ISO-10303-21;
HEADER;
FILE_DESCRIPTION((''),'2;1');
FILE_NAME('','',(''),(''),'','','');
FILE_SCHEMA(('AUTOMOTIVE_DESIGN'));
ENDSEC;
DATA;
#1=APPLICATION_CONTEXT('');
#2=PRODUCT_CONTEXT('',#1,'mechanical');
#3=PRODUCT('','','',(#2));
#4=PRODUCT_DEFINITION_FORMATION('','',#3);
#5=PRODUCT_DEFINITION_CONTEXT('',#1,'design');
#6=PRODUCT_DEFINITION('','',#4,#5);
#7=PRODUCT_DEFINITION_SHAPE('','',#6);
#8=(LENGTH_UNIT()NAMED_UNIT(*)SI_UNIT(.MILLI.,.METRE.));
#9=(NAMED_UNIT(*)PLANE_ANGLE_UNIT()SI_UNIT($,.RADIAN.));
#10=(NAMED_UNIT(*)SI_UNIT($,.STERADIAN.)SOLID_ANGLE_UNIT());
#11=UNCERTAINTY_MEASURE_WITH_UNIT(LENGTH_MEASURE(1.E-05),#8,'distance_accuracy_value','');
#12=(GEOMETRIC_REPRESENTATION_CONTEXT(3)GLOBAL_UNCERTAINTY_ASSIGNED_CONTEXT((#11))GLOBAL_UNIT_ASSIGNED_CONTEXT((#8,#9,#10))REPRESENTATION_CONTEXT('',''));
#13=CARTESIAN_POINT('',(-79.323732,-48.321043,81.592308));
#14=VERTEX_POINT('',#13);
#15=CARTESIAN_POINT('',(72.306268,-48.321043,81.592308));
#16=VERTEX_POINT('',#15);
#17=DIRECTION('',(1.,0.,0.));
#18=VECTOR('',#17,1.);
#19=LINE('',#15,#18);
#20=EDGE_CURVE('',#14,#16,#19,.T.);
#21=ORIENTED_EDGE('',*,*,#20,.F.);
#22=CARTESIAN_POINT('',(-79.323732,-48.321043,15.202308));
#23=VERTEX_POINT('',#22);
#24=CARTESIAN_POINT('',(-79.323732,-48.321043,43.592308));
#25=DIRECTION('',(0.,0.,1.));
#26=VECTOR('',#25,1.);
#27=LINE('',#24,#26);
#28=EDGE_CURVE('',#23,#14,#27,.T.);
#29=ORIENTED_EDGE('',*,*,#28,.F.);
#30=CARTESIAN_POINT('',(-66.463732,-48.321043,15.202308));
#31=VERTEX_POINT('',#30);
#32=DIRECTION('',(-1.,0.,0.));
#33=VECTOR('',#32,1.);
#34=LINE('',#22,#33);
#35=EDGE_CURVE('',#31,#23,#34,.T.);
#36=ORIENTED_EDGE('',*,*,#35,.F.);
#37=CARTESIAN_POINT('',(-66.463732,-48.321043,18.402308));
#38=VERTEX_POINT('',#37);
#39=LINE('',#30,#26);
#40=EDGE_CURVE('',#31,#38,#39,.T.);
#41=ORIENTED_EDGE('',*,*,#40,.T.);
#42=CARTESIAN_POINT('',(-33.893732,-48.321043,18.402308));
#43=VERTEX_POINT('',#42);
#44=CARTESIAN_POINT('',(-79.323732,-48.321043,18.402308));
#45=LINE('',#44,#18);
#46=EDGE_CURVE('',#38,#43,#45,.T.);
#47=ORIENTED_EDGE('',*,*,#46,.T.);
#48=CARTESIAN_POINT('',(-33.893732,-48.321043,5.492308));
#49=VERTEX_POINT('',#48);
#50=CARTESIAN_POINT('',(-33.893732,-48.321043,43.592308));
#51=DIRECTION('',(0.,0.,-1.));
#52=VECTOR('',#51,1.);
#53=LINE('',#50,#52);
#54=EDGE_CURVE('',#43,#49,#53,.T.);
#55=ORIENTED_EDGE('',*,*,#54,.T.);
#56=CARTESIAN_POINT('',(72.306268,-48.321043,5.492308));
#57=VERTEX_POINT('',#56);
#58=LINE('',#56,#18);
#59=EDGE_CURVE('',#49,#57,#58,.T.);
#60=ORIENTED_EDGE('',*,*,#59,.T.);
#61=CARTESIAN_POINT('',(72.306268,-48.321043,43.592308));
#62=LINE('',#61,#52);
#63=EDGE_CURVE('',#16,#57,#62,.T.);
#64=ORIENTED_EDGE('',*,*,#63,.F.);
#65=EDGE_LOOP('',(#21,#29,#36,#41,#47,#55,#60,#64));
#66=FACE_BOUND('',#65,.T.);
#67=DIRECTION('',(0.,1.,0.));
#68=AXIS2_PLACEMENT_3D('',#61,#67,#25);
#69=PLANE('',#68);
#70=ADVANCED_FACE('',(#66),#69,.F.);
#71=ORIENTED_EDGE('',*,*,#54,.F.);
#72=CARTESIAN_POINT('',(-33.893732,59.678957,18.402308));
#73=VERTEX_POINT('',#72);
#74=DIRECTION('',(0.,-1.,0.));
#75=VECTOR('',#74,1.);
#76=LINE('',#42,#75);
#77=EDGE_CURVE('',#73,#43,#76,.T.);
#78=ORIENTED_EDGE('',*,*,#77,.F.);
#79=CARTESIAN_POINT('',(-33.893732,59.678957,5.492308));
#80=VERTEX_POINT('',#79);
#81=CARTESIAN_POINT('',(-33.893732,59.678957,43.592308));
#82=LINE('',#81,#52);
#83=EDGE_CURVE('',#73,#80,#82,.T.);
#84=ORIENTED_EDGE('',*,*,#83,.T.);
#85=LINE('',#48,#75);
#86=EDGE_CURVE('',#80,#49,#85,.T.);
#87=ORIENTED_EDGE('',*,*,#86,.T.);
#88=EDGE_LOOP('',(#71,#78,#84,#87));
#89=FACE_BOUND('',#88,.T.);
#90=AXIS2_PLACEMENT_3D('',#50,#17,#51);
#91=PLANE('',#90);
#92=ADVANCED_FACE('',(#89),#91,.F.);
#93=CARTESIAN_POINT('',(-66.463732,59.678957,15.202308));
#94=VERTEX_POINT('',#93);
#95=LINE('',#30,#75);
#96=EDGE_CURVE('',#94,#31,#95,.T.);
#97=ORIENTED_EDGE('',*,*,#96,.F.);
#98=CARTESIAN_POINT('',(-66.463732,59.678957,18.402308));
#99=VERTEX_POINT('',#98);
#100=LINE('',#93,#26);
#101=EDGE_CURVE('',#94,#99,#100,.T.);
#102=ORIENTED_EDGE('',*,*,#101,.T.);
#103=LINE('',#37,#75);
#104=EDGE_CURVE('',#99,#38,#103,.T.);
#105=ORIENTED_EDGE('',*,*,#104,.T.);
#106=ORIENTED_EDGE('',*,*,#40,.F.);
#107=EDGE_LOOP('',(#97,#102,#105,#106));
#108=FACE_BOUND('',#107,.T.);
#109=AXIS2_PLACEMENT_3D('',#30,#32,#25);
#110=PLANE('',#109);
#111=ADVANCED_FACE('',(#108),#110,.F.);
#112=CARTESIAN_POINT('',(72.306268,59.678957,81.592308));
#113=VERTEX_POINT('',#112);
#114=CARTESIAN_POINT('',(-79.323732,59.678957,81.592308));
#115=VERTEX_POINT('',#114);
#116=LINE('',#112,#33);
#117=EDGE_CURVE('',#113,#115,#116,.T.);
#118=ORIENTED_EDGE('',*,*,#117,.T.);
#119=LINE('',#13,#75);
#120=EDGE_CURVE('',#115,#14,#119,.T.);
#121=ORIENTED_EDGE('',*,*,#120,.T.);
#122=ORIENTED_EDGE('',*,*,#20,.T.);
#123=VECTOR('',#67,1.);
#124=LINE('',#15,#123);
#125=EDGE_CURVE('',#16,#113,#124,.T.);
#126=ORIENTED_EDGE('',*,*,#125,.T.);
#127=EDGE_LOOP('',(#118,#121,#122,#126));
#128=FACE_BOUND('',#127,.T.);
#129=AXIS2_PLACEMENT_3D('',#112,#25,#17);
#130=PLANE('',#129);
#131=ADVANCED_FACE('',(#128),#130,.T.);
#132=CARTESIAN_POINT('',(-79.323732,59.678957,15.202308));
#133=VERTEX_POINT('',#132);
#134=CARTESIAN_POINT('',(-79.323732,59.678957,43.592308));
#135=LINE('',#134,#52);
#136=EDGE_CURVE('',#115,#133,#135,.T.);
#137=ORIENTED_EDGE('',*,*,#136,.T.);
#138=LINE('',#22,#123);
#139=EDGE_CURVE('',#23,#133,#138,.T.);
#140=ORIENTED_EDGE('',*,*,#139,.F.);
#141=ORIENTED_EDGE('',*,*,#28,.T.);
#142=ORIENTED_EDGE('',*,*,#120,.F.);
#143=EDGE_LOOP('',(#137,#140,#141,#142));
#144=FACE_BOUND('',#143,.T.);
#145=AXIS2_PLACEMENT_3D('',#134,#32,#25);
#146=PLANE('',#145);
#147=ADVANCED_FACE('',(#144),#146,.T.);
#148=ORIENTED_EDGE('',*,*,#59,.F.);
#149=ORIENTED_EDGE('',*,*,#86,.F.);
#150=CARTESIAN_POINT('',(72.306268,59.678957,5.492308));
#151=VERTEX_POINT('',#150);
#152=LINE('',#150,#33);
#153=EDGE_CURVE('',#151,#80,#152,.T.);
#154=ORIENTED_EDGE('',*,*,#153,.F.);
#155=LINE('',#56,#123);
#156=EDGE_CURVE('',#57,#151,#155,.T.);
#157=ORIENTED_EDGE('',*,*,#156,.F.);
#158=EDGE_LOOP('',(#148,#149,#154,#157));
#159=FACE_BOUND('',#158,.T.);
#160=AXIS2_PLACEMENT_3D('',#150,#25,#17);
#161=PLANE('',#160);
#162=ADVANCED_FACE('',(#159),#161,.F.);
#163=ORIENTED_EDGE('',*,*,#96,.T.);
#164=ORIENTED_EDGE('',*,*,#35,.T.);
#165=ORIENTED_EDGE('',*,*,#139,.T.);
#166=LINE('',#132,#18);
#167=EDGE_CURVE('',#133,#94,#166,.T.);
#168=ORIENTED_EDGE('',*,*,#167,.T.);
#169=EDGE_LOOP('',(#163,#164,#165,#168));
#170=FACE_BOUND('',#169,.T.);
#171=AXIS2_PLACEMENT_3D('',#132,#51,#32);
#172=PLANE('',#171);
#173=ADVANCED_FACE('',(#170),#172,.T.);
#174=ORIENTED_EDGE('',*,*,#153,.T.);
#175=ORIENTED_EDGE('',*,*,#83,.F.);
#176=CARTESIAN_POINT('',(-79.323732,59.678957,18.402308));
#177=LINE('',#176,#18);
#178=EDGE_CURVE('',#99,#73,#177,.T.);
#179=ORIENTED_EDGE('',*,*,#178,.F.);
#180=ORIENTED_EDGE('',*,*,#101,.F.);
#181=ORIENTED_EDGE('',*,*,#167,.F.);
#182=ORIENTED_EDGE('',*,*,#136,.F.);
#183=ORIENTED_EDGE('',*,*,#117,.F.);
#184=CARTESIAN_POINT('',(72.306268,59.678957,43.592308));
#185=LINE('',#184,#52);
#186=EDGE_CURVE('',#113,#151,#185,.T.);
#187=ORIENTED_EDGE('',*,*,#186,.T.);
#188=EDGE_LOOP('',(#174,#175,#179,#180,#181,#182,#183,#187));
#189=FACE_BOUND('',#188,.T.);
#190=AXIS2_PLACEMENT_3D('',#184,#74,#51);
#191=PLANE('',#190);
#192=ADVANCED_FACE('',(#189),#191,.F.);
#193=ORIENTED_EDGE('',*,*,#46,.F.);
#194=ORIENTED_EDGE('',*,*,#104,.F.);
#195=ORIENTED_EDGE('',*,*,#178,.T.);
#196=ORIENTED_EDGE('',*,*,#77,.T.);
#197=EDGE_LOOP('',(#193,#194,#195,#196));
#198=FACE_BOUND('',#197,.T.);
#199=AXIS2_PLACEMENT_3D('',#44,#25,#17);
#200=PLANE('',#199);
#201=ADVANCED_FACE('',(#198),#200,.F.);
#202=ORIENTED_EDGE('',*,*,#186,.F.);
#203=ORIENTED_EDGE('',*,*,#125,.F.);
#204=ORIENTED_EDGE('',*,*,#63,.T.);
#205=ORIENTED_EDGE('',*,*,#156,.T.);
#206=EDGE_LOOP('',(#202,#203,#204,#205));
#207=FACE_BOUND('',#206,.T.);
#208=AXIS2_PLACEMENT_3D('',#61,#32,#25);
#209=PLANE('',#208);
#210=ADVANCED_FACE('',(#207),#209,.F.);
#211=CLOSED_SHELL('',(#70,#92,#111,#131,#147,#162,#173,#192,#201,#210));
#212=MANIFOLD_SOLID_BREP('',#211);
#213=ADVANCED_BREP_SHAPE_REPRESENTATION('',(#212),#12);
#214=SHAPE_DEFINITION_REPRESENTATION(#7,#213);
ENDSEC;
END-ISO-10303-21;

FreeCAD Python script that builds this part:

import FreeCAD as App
import Part
import Sketcher
Q = App.Units.Quantity

doc = App.newDocument("Part")
body = doc.addObject("PartDesign::Body", "Body")

# Sketch on XY plane
sketch1 = doc.addObject("Sketcher::SketchObject", "Sketch")
body.addObject(sketch1)
sketch1.AttachmentSupport = (doc.XY_Plane, [""])
sketch1.MapMode = "FlatFace"
sketch1.AttachmentOffset = App.Placement(App.Vector(0, 0, 5.492308), App.Rotation())
sketch1.addGeometry(Part.LineSegment(App.Vector(-33.893732, 59.678957, 0), App.Vector(-33.893732, -48.321043, 0)), False)
sketch1.addGeometry(Part.LineSegment(App.Vector(-33.893732, -48.321043, 0), App.Vector(72.306268, -48.321043, 0)), False)
sketch1.addGeometry(Part.LineSegment(App.Vector(72.306268, -48.321043, 0), App.Vector(72.306268, 59.678957, 0)), False)
sketch1.addGeometry(Part.LineSegment(App.Vector(72.306268, 59.678957, 0), App.Vector(-33.893732, 59.678957, 0)), False)
sketch1.addConstraint(Sketcher.Constraint("Coincident", 0, 2, 1, 1))
sketch1.addConstraint(Sketcher.Constraint("Coincident", 1, 2, 2, 1))
sketch1.addConstraint(Sketcher.Constraint("Coincident", 2, 2, 3, 1))
sketch1.addConstraint(Sketcher.Constraint("Coincident", 3, 2, 0, 1))
sketch1.addConstraint(Sketcher.Constraint("Vertical", 0))
sketch1.addConstraint(Sketcher.Constraint("Horizontal", 1))
sketch1.addConstraint(Sketcher.Constraint("Vertical", 2))
sketch1.addConstraint(Sketcher.Constraint("Horizontal", 3))
sketch1.addConstraint(Sketcher.Constraint("DistanceY", 0, 2, 0, 1, Q("108 mm")))
sketch1.addConstraint(Sketcher.Constraint("DistanceX", 1, 1, 1, 2, Q("106.2 mm")))
sketch1.addConstraint(Sketcher.Constraint("DistanceX", 0, 2, -1, 1, Q("33.893732 mm")))
sketch1.addConstraint(Sketcher.Constraint("DistanceY", 0, 2, -1, 1, Q("48.321043 mm")))
pad1 = doc.addObject("PartDesign::Pad", "Pad")
body.addObject(pad1)
pad1.Profile = sketch1
pad1.Length = 38.1

# Sketch on YZ plane
sketch2 = doc.addObject("Sketcher::SketchObject", "Sketch001")
body.addObject(sketch2)
sketch2.AttachmentSupport = (doc.YZ_Plane, [""])
sketch2.MapMode = "FlatFace"
sketch2.AttachmentOffset = App.Placement(App.Vector(0, 0, -33.893732), App.Rotation())
sketch2.addGeometry(Part.LineSegment(App.Vector(59.678957, 18.402308, 0), App.Vector(-48.321043, 18.402308, 0)), False)
sketch2.addGeometry(Part.LineSegment(App.Vector(-48.321043, 18.402308, 0), App.Vector(-48.321043, 43.592308, 0)), False)
sketch2.addGeometry(Part.LineSegment(App.Vector(-48.321043, 43.592308, 0), App.Vector(59.678957, 43.592308, 0)), False)
sketch2.addGeometry(Part.LineSegment(App.Vector(59.678957, 43.592308, 0), App.Vector(59.678957, 18.402308, 0)), False)
sketch2.addConstraint(Sketcher.Constraint("Coincident", 0, 2, 1, 1))
sketch2.addConstraint(Sketcher.Constraint("Coincident", 1, 2, 2, 1))
sketch2.addConstraint(Sketcher.Constraint("Coincident", 2, 2, 3, 1))
sketch2.addConstraint(Sketcher.Constraint("Coincident", 3, 2, 0, 1))
sketch2.addConstraint(Sketcher.Constraint("Horizontal", 0))
sketch2.addConstraint(Sketcher.Constraint("Vertical", 1))
sketch2.addConstraint(Sketcher.Constraint("Horizontal", 2))
sketch2.addConstraint(Sketcher.Constraint("Vertical", 3))
sketch2.addConstraint(Sketcher.Constraint("DistanceX", 0, 2, 0, 1, Q("108 mm")))
sketch2.addConstraint(Sketcher.Constraint("DistanceY", 1, 1, 1, 2, Q("25.19 mm")))
sketch2.addConstraint(Sketcher.Constraint("DistanceY", -1, 1, 0, 2, Q("18.402308 mm")))
sketch2.addConstraint(Sketcher.Constraint("DistanceX", 0, 2, -1, 1, Q("48.321043 mm")))
pad2 = doc.addObject("PartDesign::Pad", "Pad001")
body.addObject(pad2)
pad2.Profile = sketch2
pad2.Length = 45.43
pad2.Reversed = True

# Sketch on XY plane
sketch3 = doc.addObject("Sketcher::SketchObject", "Sketch002")
body.addObject(sketch3)
sketch3.AttachmentSupport = (doc.XY_Plane, [""])
sketch3.MapMode = "FlatFace"
sketch3.AttachmentOffset = App.Placement(App.Vector(0, 0, 18.402308), App.Rotation())
sketch3.addGeometry(Part.LineSegment(App.Vector(-66.463732, 59.678957, 0), App.Vector(-66.463732, -48.321043, 0)), False)
sketch3.addGeometry(Part.LineSegment(App.Vector(-66.463732, -48.321043, 0), App.Vector(-79.323732, -48.321043, 0)), False)
sketch3.addGeometry(Part.LineSegment(App.Vector(-79.323732, -48.321043, 0), App.Vector(-79.323732, 59.678957, 0)), False)
sketch3.addGeometry(Part.LineSegment(App.Vector(-79.323732, 59.678957, 0), App.Vector(-66.463732, 59.678957, 0)), False)
sketch3.addConstraint(Sketcher.Constraint("Coincident", 0, 2, 1, 1))
sketch3.addConstraint(Sketcher.Constraint("Coincident", 1, 2, 2, 1))
sketch3.addConstraint(Sketcher.Constraint("Coincident", 2, 2, 3, 1))
sketch3.addConstraint(Sketcher.Constraint("Coincident", 3, 2, 0, 1))
sketch3.addConstraint(Sketcher.Constraint("Vertical", 0))
sketch3.addConstraint(Sketcher.Constraint("Horizontal", 1))
sketch3.addConstraint(Sketcher.Constraint("Vertical", 2))
sketch3.addConstraint(Sketcher.Constraint("Horizontal", 3))
sketch3.addConstraint(Sketcher.Constraint("DistanceY", 0, 2, 0, 1, Q("108 mm")))
sketch3.addConstraint(Sketcher.Constraint("DistanceX", 1, 2, 1, 1, Q("12.86 mm")))
sketch3.addConstraint(Sketcher.Constraint("DistanceX", 0, 2, -1, 1, Q("66.463732 mm")))
sketch3.addConstraint(Sketcher.Constraint("DistanceY", 0, 2, -1, 1, Q("48.321043 mm")))
pad3 = doc.addObject("PartDesign::Pad", "Pad002")
body.addObject(pad3)
pad3.Profile = sketch3
pad3.Length = 3.2
pad3.Reversed = True

# Sketch on XY plane
sketch4 = doc.addObject("Sketcher::SketchObject", "Sketch003")
body.addObject(sketch4)
sketch4.AttachmentSupport = (doc.XY_Plane, [""])
sketch4.MapMode = "FlatFace"
sketch4.AttachmentOffset = App.Placement(App.Vector(0, 0, 43.592308), App.Rotation())
sketch4.addGeometry(Part.LineSegment(App.Vector(-79.323732, 59.678957, 0), App.Vector(-79.323732, -48.321043, 0)), False)
sketch4.addGeometry(Part.LineSegment(App.Vector(-79.323732, -48.321043, 0), App.Vector(72.306268, -48.321043, 0)), False)
sketch4.addGeometry(Part.LineSegment(App.Vector(72.306268, -48.321043, 0), App.Vector(72.306268, 59.678957, 0)), False)
sketch4.addGeometry(Part.LineSegment(App.Vector(72.306268, 59.678957, 0), App.Vector(-79.323732, 59.678957, 0)), False)
sketch4.addConstraint(Sketcher.Constraint("Coincident", 0, 2, 1, 1))
sketch4.addConstraint(Sketcher.Constraint("Coincident", 1, 2, 2, 1))
sketch4.addConstraint(Sketcher.Constraint("Coincident", 2, 2, 3, 1))
sketch4.addConstraint(Sketcher.Constraint("Coincident", 3, 2, 0, 1))
sketch4.addConstraint(Sketcher.Constraint("Vertical", 0))
sketch4.addConstraint(Sketcher.Constraint("Horizontal", 1))
sketch4.addConstraint(Sketcher.Constraint("Vertical", 2))
sketch4.addConstraint(Sketcher.Constraint("Horizontal", 3))
sketch4.addConstraint(Sketcher.Constraint("DistanceY", 0, 2, 0, 1, Q("108 mm")))
sketch4.addConstraint(Sketcher.Constraint("DistanceX", 1, 1, 1, 2, Q("151.63 mm")))
sketch4.addConstraint(Sketcher.Constraint("DistanceX", 0, 2, -1, 1, Q("79.323732 mm")))
sketch4.addConstraint(Sketcher.Constraint("DistanceY", 0, 2, -1, 1, Q("48.321043 mm")))
pocket1 = doc.addObject("PartDesign::Pocket", "Pocket")
body.addObject(pocket1)
pocket1.Profile = sketch4
pocket1.Length = 21

# Sketch on XY plane
sketch5 = doc.addObject("Sketcher::SketchObject", "Sketch004")
body.addObject(sketch5)
sketch5.AttachmentSupport = (doc.XY_Plane, [""])
sketch5.MapMode = "FlatFace"
sketch5.AttachmentOffset = App.Placement(App.Vector(0, 0, 22.592308), App.Rotation())
sketch5.addGeometry(Part.LineSegment(App.Vector(-79.323732, 59.678957, 0), App.Vector(-79.323732, -48.321043, 0)), False)
sketch5.addGeometry(Part.LineSegment(App.Vector(-79.323732, -48.321043, 0), App.Vector(72.306268, -48.321043, 0)), False)
sketch5.addGeometry(Part.LineSegment(App.Vector(72.306268, -48.321043, 0), App.Vector(72.306268, 59.678957, 0)), False)
sketch5.addGeometry(Part.LineSegment(App.Vector(72.306268, 59.678957, 0), App.Vector(-79.323732, 59.678957, 0)), False)
sketch5.addConstraint(Sketcher.Constraint("Coincident", 0, 2, 1, 1))
sketch5.addConstraint(Sketcher.Constraint("Coincident", 1, 2, 2, 1))
sketch5.addConstraint(Sketcher.Constraint("Coincident", 2, 2, 3, 1))
sketch5.addConstraint(Sketcher.Constraint("Coincident", 3, 2, 0, 1))
sketch5.addConstraint(Sketcher.Constraint("Vertical", 0))
sketch5.addConstraint(Sketcher.Constraint("Horizontal", 1))
sketch5.addConstraint(Sketcher.Constraint("Vertical", 2))
sketch5.addConstraint(Sketcher.Constraint("Horizontal", 3))
sketch5.addConstraint(Sketcher.Constraint("DistanceY", 0, 2, 0, 1, Q("108 mm")))
sketch5.addConstraint(Sketcher.Constraint("DistanceX", 1, 1, 1, 2, Q("151.63 mm")))
sketch5.addConstraint(Sketcher.Constraint("DistanceX", 0, 2, -1, 1, Q("79.323732 mm")))
sketch5.addConstraint(Sketcher.Constraint("DistanceY", 0, 2, -1, 1, Q("48.321043 mm")))
pad4 = doc.addObject("PartDesign::Pad", "Pad003")
body.addObject(pad4)
pad4.Profile = sketch5
pad4.Length = 59

doc.recompute()
